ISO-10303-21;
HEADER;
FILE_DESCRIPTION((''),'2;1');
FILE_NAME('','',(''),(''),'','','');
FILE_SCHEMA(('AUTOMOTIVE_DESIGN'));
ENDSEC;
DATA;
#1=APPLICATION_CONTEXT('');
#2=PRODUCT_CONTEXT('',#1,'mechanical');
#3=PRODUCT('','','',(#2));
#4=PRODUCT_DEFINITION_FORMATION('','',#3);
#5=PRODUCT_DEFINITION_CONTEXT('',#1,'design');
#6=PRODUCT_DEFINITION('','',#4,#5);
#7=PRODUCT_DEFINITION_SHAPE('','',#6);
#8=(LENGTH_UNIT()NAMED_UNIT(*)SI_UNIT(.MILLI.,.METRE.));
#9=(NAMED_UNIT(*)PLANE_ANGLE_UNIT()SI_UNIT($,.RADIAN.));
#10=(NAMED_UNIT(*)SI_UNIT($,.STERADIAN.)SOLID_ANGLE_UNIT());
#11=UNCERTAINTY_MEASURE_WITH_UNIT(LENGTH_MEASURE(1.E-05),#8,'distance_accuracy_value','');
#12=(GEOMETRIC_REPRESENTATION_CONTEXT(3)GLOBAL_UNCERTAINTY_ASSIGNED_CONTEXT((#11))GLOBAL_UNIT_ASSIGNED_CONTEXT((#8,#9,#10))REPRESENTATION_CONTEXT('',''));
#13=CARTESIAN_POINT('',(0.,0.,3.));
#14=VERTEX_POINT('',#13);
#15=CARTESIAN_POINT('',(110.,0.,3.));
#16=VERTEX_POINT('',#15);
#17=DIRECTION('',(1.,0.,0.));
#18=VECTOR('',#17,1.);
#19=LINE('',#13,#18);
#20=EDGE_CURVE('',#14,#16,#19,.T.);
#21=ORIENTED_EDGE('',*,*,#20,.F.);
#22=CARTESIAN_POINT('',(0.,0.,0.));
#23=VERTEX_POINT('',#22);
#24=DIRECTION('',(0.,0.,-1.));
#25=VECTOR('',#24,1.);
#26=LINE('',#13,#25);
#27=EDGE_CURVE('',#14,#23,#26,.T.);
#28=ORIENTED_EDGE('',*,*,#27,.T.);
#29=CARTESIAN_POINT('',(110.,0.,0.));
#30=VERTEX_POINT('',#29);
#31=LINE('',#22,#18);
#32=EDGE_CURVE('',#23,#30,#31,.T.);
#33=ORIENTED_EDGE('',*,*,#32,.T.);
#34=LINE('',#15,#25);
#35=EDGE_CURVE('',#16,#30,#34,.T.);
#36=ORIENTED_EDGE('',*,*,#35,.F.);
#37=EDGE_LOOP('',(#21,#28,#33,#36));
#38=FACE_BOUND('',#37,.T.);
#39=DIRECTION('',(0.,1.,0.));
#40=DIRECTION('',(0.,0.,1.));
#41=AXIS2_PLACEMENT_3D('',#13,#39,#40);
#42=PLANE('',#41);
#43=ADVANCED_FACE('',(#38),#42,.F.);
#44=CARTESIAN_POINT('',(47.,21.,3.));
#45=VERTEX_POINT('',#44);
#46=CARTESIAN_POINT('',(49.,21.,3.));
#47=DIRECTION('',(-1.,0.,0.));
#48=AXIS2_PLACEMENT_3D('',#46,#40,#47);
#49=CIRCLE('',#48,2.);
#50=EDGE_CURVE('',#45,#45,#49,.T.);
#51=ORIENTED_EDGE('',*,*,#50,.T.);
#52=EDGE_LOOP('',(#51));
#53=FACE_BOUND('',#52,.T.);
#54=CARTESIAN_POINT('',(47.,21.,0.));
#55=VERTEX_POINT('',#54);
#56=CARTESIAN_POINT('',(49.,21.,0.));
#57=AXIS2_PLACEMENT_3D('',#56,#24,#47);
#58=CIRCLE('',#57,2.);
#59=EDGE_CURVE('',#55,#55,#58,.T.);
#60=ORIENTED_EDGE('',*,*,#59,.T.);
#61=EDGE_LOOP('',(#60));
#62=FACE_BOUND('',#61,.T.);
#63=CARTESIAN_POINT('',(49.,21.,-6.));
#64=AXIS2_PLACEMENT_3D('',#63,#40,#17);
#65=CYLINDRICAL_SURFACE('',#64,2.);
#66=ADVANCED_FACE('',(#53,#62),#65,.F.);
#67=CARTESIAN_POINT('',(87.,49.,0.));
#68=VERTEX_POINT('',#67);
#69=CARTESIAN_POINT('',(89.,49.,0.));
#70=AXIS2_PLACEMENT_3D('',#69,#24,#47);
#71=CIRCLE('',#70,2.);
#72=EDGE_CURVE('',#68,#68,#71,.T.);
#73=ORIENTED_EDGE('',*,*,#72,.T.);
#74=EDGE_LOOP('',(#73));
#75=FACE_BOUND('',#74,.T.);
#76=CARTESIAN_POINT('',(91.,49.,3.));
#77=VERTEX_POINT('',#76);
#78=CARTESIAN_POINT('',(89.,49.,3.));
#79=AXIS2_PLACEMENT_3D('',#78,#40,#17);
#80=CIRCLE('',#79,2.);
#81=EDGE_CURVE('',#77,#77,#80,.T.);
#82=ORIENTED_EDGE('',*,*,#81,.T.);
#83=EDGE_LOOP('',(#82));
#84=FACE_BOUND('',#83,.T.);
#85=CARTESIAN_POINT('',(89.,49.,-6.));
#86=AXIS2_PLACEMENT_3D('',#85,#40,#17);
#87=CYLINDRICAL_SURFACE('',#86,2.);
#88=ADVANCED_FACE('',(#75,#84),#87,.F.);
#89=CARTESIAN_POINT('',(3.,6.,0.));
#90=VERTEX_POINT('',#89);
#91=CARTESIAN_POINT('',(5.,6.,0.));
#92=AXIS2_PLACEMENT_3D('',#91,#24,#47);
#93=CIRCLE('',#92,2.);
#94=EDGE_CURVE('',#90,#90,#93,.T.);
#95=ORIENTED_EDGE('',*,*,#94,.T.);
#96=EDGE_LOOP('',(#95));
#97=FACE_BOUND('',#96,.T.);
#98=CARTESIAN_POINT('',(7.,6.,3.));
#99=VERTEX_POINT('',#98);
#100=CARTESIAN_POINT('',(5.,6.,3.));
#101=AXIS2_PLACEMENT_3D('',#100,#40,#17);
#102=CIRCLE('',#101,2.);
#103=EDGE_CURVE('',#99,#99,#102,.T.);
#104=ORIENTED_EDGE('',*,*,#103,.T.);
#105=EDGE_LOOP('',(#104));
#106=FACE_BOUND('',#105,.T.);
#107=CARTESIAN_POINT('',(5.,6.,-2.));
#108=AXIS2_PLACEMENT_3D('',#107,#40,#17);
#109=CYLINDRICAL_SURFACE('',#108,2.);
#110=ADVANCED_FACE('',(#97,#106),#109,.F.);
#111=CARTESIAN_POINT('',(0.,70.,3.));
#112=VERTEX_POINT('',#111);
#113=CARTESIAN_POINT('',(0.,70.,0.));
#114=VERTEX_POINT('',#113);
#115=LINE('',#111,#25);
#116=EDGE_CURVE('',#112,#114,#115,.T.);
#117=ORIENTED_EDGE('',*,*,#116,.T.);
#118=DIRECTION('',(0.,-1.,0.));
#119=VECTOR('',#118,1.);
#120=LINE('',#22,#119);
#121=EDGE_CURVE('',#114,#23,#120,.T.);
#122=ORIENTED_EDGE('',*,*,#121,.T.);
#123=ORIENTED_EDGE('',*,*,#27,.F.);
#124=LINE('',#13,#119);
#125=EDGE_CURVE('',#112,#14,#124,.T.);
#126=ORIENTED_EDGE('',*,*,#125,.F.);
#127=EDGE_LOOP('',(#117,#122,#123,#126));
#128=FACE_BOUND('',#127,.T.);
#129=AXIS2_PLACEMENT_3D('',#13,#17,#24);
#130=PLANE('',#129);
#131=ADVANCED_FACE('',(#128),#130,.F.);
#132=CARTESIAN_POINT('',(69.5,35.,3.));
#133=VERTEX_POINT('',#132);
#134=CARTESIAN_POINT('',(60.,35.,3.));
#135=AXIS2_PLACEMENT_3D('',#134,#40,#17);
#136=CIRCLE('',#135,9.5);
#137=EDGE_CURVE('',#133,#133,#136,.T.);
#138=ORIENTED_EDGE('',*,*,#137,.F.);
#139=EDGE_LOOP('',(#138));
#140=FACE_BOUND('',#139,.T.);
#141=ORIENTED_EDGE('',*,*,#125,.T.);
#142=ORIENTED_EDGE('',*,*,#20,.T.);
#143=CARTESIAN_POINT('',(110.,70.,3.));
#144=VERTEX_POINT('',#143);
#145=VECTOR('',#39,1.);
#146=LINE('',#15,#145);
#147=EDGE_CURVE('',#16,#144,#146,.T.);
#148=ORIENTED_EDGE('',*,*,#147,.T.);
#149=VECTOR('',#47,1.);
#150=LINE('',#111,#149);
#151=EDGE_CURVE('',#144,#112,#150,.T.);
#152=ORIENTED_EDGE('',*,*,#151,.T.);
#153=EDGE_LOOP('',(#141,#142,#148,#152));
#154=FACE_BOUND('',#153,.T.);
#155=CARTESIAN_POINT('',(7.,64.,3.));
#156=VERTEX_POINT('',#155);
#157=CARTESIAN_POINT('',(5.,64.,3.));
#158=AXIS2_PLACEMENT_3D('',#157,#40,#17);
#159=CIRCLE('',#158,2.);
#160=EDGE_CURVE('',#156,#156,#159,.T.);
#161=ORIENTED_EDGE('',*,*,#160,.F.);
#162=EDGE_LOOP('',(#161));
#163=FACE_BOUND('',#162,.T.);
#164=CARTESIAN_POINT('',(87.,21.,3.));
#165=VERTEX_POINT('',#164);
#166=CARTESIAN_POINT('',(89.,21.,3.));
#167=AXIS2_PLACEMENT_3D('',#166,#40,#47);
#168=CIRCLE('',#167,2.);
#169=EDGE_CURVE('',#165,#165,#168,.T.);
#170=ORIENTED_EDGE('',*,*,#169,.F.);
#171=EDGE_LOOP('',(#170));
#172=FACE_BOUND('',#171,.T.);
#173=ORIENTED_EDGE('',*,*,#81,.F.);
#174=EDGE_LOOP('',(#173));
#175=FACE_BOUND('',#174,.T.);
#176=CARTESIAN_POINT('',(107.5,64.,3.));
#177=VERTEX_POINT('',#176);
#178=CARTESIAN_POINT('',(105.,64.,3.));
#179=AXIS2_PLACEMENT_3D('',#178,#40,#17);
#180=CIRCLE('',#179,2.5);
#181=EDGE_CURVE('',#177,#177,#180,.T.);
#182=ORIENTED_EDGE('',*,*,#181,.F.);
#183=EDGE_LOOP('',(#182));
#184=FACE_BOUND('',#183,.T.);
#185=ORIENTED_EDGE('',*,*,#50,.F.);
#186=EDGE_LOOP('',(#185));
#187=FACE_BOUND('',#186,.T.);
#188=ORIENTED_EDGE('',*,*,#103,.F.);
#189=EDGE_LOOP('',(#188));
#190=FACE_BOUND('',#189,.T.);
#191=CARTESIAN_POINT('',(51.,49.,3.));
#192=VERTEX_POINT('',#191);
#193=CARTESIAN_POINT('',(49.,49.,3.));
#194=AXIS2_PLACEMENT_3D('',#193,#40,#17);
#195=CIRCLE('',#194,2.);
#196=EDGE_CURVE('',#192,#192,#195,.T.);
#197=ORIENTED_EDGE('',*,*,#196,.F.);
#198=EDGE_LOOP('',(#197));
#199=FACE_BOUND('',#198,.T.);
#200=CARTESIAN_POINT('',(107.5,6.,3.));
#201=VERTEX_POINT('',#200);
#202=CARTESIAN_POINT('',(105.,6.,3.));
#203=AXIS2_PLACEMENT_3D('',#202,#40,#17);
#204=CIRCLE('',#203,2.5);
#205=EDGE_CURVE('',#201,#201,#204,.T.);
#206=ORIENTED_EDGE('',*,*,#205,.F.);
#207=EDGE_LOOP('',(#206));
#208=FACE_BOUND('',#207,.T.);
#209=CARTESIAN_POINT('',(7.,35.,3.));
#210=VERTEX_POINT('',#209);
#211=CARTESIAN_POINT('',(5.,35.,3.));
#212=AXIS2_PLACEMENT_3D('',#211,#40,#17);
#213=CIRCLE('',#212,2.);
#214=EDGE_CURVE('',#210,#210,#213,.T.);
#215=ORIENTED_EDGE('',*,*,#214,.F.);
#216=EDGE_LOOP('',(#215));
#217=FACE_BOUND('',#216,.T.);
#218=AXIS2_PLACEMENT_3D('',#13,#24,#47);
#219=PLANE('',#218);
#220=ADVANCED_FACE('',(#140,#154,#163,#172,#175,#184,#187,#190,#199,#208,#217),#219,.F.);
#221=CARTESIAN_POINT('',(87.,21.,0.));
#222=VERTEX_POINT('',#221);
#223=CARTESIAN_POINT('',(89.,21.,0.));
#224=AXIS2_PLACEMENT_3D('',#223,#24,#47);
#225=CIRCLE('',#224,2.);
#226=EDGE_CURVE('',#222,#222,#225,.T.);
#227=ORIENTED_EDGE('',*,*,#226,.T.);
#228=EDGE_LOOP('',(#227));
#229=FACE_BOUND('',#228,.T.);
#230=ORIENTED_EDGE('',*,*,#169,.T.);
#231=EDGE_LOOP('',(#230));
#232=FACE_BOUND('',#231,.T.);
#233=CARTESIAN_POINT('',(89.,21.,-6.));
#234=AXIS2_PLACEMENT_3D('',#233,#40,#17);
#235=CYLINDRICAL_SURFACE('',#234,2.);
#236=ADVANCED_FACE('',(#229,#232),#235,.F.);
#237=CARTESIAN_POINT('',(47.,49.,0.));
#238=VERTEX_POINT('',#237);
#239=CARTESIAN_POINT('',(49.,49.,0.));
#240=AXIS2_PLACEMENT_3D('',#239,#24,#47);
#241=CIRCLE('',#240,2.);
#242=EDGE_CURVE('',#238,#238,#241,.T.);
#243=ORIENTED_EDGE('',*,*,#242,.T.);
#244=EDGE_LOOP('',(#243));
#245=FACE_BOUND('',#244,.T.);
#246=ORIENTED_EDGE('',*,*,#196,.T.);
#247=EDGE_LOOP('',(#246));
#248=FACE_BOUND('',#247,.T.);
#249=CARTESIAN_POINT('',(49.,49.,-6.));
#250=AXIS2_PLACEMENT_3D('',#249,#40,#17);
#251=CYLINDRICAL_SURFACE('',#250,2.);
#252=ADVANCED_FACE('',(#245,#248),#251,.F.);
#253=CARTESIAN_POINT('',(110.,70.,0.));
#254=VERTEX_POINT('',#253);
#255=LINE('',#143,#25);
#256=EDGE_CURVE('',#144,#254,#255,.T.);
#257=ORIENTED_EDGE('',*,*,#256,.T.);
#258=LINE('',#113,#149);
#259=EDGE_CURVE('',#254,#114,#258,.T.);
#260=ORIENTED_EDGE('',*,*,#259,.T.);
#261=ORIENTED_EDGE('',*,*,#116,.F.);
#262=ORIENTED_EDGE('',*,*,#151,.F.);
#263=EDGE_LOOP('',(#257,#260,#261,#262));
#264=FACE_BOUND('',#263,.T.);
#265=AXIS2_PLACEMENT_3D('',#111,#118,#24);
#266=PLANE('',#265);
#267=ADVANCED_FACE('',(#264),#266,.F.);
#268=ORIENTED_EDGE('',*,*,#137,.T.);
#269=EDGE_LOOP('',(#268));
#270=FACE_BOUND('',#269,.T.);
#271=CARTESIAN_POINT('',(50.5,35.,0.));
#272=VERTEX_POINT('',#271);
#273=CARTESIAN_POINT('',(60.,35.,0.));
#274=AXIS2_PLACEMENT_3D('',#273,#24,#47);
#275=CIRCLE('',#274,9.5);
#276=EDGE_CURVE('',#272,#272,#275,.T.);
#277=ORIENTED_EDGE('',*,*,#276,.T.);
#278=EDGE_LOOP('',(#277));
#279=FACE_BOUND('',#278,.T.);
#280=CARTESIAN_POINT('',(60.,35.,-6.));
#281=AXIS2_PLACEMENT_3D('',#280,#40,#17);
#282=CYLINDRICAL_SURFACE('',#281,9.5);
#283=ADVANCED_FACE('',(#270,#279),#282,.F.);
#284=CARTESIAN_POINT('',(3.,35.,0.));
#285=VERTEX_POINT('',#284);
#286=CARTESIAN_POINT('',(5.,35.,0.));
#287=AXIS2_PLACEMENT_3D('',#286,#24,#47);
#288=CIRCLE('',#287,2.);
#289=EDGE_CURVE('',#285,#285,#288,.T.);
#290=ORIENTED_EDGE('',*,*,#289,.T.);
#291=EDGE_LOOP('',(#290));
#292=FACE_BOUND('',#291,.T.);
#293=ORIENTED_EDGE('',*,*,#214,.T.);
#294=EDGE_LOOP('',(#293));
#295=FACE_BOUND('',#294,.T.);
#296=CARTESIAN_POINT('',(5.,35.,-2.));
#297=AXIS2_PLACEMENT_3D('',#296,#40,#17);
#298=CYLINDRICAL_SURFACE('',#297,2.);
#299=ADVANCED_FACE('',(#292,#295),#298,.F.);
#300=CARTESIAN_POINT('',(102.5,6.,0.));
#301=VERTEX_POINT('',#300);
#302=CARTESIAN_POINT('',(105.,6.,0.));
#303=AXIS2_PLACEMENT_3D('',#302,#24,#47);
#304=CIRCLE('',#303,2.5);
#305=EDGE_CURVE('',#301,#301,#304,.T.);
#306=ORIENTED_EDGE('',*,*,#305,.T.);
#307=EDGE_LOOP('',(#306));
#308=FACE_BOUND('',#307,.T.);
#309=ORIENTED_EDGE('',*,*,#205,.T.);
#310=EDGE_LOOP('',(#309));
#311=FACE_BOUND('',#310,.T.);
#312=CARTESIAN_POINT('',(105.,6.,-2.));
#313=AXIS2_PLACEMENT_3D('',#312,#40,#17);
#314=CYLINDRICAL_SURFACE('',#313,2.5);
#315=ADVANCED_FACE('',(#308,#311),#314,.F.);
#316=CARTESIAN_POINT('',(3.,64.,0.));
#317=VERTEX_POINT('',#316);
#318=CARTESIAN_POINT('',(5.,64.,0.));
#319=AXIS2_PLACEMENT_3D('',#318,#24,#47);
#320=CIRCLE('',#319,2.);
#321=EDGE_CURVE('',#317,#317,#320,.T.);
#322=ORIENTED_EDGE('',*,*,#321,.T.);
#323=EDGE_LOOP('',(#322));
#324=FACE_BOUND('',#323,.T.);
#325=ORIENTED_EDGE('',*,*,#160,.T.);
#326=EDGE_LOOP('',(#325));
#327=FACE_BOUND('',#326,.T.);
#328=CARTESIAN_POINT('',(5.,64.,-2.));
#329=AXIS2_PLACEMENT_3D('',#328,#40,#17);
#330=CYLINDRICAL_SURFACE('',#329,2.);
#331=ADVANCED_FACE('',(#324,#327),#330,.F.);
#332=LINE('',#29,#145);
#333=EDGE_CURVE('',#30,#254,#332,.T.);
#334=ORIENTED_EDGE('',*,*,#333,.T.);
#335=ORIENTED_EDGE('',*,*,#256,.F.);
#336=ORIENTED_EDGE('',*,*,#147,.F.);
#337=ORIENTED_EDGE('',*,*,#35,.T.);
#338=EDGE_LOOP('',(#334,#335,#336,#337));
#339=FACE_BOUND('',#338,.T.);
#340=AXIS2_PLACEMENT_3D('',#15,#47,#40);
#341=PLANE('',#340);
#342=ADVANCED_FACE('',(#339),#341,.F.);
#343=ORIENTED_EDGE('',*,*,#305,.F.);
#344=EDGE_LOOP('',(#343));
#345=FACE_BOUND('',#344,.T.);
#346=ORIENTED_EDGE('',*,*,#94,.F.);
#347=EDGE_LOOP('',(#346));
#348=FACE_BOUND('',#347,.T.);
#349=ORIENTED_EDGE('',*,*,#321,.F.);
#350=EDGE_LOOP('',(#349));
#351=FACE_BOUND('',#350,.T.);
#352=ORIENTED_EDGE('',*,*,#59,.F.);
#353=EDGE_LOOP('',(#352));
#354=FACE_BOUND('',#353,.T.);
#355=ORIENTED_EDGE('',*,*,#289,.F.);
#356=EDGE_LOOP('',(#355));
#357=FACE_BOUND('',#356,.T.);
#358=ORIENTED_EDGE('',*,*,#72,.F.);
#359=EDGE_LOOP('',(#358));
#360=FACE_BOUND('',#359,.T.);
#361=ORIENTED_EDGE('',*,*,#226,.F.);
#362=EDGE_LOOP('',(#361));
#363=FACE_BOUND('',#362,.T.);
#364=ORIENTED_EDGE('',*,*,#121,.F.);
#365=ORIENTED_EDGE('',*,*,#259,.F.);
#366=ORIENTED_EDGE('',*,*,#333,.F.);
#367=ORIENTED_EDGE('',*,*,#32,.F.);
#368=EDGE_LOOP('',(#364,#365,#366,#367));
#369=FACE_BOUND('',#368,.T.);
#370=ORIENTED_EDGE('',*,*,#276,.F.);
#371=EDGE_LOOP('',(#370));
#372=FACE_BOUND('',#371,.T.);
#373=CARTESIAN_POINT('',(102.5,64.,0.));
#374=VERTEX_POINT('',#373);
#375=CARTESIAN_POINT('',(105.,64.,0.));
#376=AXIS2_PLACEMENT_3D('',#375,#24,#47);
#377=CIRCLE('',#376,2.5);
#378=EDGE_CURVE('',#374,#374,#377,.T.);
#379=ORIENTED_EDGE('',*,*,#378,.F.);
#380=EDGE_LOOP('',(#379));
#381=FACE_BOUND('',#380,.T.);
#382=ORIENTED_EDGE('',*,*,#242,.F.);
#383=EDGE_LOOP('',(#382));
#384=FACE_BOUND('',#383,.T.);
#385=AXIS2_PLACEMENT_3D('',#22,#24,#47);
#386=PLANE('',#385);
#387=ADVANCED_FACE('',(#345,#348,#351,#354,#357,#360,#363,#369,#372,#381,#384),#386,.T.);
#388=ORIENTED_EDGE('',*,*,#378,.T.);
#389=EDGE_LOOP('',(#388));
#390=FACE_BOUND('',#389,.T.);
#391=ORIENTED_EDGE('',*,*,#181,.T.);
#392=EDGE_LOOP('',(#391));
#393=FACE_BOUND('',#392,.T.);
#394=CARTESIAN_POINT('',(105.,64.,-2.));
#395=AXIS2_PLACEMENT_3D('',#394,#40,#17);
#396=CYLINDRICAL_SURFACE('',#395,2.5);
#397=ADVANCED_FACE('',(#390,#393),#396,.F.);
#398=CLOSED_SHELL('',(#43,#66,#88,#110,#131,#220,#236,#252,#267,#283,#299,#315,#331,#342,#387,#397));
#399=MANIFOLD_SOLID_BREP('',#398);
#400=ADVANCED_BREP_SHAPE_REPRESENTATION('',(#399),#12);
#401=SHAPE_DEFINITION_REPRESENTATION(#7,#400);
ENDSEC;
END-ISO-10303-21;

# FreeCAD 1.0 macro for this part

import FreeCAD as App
import Part
import Sketcher

V = App.Vector


def add_polygon(sketch, points):
    """Adds a closed chain of lines whose ends are joined by coincident constraints."""
    first, n = sketch.GeometryCount, len(points)
    for a, b in zip(points, points[1:] + points[:1]):
        sketch.addGeometry(Part.LineSegment(App.Vector(*a, 0), App.Vector(*b, 0)), False)
    for i in range(n):
        sketch.addConstraint(Sketcher.Constraint("Coincident", first + i, 2, first + (i + 1) % n, 1))

doc = App.newDocument("Part")
params = doc.addObject("Spreadsheet::Sheet", "Params")
for row, (alias, value) in enumerate([
    ("sketch1_width", "110 mm"),
    ("sketch1_height", "70 mm"),
    ("pad1_length", "3 mm"),
    ("sketch2_diameter", "4 mm"),
    ("sketch2_diameter2", "5 mm"),
    ("pocket1_length", "5 mm"),
    ("sketch3_diameter", "19 mm"),
    ("sketch3_diameter2", "4 mm"),
    ("pocket2_length", "9 mm"),
], start=1):
    params.set(f"A{row}", alias)
    params.set(f"B{row}", "=" + value)
    params.setAlias(f"B{row}", alias)

body = doc.addObject("PartDesign::Body", "Body")

# Sketch on XY plane
sketch1 = doc.addObject("Sketcher::SketchObject", "Sketch")
body.addObject(sketch1)
sketch1.AttachmentSupport = (doc.XY_Plane, [""])
sketch1.MapMode = "FlatFace"
add_polygon(sketch1, [(0, 70), (0, 0), (110, 0), (110, 70)])  # lines 0-3
sketch1.addConstraint(Sketcher.Constraint("Vertical", 0))
sketch1.addConstraint(Sketcher.Constraint("Horizontal", 1))
sketch1.addConstraint(Sketcher.Constraint("Vertical", 2))
sketch1.addConstraint(Sketcher.Constraint("Horizontal", 3))
sketch1.addConstraint(Sketcher.Constraint("Coincident", 0, 2, -1, 1))
sketch1.addConstraint(Sketcher.Constraint("DistanceX", 1, 1, 1, 2, 110.0))
sketch1.addConstraint(Sketcher.Constraint("DistanceY", 0, 2, 0, 1, 70.0))
sketch1.setExpression("Constraints[9]", "Params.sketch1_width")
sketch1.setExpression("Constraints[10]", "Params.sketch1_height")
pad1 = doc.addObject("PartDesign::Pad", "Pad")
body.addObject(pad1)
pad1.Profile = sketch1
pad1.setExpression("Length", "Params.pad1_length")

# Sketch on XY plane
sketch2 = doc.addObject("Sketcher::SketchObject", "Sketch001")
body.addObject(sketch2)
sketch2.AttachmentSupport = (doc.XY_Plane, [""])
sketch2.MapMode = "FlatFace"
sketch2.AttachmentOffset = App.Placement(V(0, 0, 3), App.Rotation())
sketch2.addGeometry(Part.Circle(V(5, 64, 0), V(0, 0, 1), 2), False)
sketch2.addGeometry(Part.Circle(V(5, 6, 0), V(0, 0, 1), 2), False)
sketch2.addGeometry(Part.Circle(V(105, 64, 0), V(0, 0, 1), 2.5), False)
sketch2.addGeometry(Part.Circle(V(105, 6, 0), V(0, 0, 1), 2.5), False)
sketch2.addGeometry(Part.Circle(V(5, 35, 0), V(0, 0, 1), 2), False)
sketch2.addConstraint(Sketcher.Constraint("Equal", 0, 1))
sketch2.addConstraint(Sketcher.Constraint("Equal", 2, 3))
sketch2.addConstraint(Sketcher.Constraint("Equal", 1, 4))
sketch2.addConstraint(Sketcher.Constraint("Horizontal", 0, 3, 2, 3))
sketch2.addConstraint(Sketcher.Constraint("Horizontal", 1, 3, 3, 3))
sketch2.addConstraint(Sketcher.Constraint("Vertical", 0, 3, 1, 3))
sketch2.addConstraint(Sketcher.Constraint("Vertical", 2, 3, 3, 3))
sketch2.addConstraint(Sketcher.Constraint("Vertical", 1, 3, 4, 3))
sketch2.addConstraint(Sketcher.Constraint("Diameter", 0, 4.0))
sketch2.addConstraint(Sketcher.Constraint("Diameter", 2, 5.0))
sketch2.addConstraint(Sketcher.Constraint("DistanceX", -1, 1, 0, 3, 5.0))
sketch2.addConstraint(Sketcher.Constraint("DistanceY", -1, 1, 0, 3, 64.0))
sketch2.addConstraint(Sketcher.Constraint("DistanceY", -1, 1, 1, 3, 6.0))
sketch2.addConstraint(Sketcher.Constraint("DistanceX", -1, 1, 2, 3, 105.0))
sketch2.addConstraint(Sketcher.Constraint("DistanceY", -1, 1, 4, 3, 35.0))
sketch2.setExpression("Constraints[8]", "Params.sketch2_diameter")
sketch2.setExpression("Constraints[9]", "Params.sketch2_diameter2")
pocket1 = doc.addObject("PartDesign::Pocket", "Pocket")
body.addObject(pocket1)
pocket1.Profile = sketch2
pocket1.setExpression("Length", "Params.pocket1_length")

# Sketch on XY plane
sketch3 = doc.addObject("Sketcher::SketchObject", "Sketch002")
body.addObject(sketch3)
sketch3.AttachmentSupport = (doc.XY_Plane, [""])
sketch3.MapMode = "FlatFace"
sketch3.AttachmentOffset = App.Placement(V(0, 0, 3), App.Rotation())
sketch3.addGeometry(Part.Circle(V(60, 35, 0), V(0, 0, 1), 9.5), False)
sketch3.addGeometry(Part.Circle(V(49, 49, 0), V(0, 0, 1), 2), False)
sketch3.addGeometry(Part.Circle(V(89, 49, 0), V(0, 0, 1), 2), False)
sketch3.addGeometry(Part.Circle(V(89, 21, 0), V(0, 0, 1), 2), False)
sketch3.addGeometry(Part.Circle(V(49, 21, 0), V(0, 0, 1), 2), False)
sketch3.addConstraint(Sketcher.Constraint("Equal", 1, 2))
sketch3.addConstraint(Sketcher.Constraint("Equal", 2, 3))
sketch3.addConstraint(Sketcher.Constraint("Equal", 3, 4))
sketch3.addConstraint(Sketcher.Constraint("Horizontal", 1, 3, 2, 3))
sketch3.addConstraint(Sketcher.Constraint("Horizontal", 3, 3, 4, 3))
sketch3.addConstraint(Sketcher.Constraint("Vertical", 2, 3, 3, 3))
sketch3.addConstraint(Sketcher.Constraint("Vertical", 1, 3, 4, 3))
sketch3.addConstraint(Sketcher.Constraint("Diameter", 0, 19.0))
sketch3.addConstraint(Sketcher.Constraint("Diameter", 1, 4.0))
sketch3.addConstraint(Sketcher.Constraint("DistanceX", -1, 1, 0, 3, 60.0))
sketch3.addConstraint(Sketcher.Constraint("DistanceY", -1, 1, 0, 3, 35.0))
sketch3.addConstraint(Sketcher.Constraint("DistanceX", -1, 1, 1, 3, 49.0))
sketch3.addConstraint(Sketcher.Constraint("DistanceY", -1, 1, 1, 3, 49.0))
sketch3.addConstraint(Sketcher.Constraint("DistanceX", -1, 1, 2, 3, 89.0))
sketch3.addConstraint(Sketcher.Constraint("DistanceY", -1, 1, 3, 3, 21.0))
sketch3.setExpression("Constraints[7]", "Params.sketch3_diameter")
sketch3.setExpression("Constraints[8]", "Params.sketch3_diameter2")
pocket2 = doc.addObject("PartDesign::Pocket", "Pocket001")
body.addObject(pocket2)
pocket2.Profile = sketch3
pocket2.setExpression("Length", "Params.pocket2_length")

doc.recompute()
